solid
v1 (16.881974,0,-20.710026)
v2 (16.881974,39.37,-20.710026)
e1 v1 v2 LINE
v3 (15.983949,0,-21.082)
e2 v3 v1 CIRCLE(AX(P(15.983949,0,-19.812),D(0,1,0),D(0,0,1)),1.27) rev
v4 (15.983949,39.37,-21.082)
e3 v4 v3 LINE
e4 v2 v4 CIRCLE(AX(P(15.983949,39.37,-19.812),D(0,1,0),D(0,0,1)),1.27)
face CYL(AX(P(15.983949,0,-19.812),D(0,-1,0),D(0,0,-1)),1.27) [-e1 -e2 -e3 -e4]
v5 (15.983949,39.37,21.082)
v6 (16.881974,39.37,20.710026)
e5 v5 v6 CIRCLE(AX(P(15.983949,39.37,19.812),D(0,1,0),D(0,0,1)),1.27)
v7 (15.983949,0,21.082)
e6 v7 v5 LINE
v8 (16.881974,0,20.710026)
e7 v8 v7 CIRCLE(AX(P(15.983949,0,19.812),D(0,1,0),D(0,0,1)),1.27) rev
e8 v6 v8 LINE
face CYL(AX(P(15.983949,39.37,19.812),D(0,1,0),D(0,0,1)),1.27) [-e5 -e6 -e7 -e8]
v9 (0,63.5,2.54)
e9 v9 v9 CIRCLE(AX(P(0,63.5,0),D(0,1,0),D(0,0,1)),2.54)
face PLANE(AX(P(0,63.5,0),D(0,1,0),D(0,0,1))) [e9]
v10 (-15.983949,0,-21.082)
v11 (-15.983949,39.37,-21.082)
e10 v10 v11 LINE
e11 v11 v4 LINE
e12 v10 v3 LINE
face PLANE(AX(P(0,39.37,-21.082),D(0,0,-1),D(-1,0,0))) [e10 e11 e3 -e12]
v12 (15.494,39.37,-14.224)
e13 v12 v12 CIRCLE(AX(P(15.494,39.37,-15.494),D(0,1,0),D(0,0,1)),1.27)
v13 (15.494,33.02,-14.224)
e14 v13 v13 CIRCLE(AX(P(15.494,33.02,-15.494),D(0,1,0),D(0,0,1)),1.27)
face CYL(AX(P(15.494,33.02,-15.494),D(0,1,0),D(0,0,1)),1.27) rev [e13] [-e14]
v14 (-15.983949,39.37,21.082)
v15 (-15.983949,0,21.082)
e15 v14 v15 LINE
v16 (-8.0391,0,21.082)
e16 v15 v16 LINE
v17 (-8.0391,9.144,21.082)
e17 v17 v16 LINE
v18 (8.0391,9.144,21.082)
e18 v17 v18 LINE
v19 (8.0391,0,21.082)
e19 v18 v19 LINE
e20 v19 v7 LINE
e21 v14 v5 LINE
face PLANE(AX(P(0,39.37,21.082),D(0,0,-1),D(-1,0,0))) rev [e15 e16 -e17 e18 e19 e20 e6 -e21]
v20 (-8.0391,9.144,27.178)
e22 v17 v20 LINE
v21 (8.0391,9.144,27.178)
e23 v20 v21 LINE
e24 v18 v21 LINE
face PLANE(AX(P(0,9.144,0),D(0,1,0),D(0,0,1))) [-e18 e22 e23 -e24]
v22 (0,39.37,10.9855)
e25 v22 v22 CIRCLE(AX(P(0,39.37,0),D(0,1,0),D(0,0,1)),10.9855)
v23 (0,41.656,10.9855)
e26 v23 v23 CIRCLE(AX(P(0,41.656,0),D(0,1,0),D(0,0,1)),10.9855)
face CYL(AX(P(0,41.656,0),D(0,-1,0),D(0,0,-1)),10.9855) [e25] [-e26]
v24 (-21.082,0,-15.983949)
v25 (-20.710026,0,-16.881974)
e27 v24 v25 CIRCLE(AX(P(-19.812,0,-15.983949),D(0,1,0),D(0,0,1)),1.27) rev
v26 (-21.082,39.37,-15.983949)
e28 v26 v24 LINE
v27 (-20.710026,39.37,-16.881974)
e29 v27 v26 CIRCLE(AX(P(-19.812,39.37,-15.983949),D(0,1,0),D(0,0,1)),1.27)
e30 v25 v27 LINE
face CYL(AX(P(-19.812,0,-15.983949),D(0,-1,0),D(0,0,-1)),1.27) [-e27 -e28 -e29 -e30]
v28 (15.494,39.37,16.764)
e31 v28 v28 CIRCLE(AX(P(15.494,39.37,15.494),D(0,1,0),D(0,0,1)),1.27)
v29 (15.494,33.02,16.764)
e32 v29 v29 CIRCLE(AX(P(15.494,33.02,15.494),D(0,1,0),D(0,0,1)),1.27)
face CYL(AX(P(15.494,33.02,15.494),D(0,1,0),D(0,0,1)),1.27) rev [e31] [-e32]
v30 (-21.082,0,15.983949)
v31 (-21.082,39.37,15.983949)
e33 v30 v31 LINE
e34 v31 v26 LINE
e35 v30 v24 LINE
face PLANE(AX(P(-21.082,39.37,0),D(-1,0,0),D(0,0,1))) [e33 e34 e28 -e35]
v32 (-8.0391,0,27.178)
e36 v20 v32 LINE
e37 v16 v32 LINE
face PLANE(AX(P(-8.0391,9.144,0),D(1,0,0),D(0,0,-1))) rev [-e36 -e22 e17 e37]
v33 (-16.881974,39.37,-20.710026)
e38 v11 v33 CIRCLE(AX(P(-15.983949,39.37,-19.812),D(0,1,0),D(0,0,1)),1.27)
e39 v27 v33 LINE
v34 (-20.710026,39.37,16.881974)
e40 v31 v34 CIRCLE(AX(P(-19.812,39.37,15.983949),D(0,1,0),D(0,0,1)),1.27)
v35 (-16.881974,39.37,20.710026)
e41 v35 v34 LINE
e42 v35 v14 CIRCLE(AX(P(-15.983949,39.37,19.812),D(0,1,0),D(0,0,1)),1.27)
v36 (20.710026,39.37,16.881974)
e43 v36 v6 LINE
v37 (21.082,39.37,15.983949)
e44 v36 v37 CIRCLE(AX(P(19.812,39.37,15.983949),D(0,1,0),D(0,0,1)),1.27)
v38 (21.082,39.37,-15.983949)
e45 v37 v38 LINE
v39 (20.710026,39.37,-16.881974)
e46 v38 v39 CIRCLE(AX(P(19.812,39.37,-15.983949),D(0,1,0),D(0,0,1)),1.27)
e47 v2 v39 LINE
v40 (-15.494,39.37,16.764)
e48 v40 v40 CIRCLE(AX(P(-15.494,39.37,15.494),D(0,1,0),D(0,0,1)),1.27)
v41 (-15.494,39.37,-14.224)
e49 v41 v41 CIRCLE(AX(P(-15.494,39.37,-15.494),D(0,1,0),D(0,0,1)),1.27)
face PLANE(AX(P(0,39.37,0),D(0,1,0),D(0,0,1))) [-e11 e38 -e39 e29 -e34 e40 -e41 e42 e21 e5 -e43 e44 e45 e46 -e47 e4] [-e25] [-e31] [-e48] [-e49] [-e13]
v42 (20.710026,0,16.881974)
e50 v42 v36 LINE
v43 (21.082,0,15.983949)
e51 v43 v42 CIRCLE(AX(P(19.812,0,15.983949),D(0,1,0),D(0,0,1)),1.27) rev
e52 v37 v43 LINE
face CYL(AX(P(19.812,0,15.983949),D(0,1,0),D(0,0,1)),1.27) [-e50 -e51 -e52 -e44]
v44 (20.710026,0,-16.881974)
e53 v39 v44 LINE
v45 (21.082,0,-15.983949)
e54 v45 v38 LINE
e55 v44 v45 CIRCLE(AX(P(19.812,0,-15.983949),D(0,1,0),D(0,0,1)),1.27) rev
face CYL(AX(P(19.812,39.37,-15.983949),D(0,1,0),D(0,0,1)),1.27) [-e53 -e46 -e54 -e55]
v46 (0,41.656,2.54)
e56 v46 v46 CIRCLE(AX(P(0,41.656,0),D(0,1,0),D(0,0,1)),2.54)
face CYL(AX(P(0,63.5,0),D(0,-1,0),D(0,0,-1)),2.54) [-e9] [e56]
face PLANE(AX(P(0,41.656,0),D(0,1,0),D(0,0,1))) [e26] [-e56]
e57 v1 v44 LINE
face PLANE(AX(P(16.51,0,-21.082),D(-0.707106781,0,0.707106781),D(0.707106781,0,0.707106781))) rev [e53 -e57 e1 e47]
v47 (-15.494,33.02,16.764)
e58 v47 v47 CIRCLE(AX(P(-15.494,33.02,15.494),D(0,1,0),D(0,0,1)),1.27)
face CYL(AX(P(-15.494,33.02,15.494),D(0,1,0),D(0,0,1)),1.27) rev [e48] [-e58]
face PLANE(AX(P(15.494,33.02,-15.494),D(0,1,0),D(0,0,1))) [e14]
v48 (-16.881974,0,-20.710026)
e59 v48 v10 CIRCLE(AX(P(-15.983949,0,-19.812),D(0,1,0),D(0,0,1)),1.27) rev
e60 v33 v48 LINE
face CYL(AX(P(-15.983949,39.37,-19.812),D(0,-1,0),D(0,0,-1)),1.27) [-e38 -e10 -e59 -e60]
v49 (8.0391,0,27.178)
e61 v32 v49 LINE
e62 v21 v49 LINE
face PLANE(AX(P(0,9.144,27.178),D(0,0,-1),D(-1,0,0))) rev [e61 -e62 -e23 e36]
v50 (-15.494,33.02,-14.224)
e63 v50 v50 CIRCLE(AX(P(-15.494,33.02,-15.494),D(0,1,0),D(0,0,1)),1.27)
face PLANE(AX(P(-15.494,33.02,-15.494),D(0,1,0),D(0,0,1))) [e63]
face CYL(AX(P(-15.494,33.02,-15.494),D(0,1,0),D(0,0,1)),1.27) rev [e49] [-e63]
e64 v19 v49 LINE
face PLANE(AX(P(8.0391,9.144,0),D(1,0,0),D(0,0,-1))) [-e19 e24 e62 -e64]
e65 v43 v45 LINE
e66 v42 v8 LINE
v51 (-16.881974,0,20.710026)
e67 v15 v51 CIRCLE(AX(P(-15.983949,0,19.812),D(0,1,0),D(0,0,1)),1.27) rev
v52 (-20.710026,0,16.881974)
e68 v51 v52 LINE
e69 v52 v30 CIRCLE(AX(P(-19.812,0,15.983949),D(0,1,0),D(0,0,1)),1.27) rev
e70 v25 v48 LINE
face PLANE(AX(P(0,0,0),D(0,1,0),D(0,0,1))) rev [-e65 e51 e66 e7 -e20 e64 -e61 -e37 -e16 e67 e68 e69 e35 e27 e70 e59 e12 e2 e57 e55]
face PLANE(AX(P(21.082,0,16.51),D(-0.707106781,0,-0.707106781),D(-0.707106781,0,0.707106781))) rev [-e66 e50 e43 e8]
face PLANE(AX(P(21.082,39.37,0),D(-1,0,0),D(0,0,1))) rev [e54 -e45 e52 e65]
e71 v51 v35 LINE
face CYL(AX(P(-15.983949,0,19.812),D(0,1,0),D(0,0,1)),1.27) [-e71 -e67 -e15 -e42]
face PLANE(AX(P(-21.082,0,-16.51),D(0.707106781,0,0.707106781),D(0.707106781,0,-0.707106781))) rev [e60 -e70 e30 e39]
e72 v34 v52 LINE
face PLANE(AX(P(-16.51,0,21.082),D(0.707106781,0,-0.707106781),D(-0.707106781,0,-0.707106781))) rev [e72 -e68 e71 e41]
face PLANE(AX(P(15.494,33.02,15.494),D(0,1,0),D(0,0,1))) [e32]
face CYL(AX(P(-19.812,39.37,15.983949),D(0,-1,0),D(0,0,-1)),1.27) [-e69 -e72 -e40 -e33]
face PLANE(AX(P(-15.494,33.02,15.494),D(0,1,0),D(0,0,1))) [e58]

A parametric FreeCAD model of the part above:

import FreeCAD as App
import Part
import Sketcher
from FreeCAD import Vector
Q = App.Units.Quantity


def edges_at(feature, points):
    """Names of the edges that pass closest to the given points."""
    edges = feature.Shape.Edges
    near = lambda p: min(range(len(edges)), key=lambda i: edges[i].distToShape(Part.Vertex(*p))[0])
    return sorted({f"Edge{near(p) + 1}" for p in points})

doc = App.newDocument("Part")
body = doc.addObject("PartDesign::Body", "Body")

# Sketch on XZ plane
sketch1 = doc.addObject("Sketcher::SketchObject", "Sketch")
body.addObject(sketch1)
sketch1.AttachmentSupport = (doc.XZ_Plane, [""])
sketch1.MapMode = "FlatFace"
sketch1.addGeometry(Part.LineSegment(Vector(-21, -21, 0), Vector(-21, 21, 0)), False)
sketch1.addGeometry(Part.LineSegment(Vector(-21, 21, 0), Vector(21, 21, 0)), False)
sketch1.addGeometry(Part.LineSegment(Vector(21, 21, 0), Vector(21, -21, 0)), False)
sketch1.addGeometry(Part.LineSegment(Vector(21, -21, 0), Vector(-21, -21, 0)), False)
sketch1.addConstraint(Sketcher.Constraint("Coincident", 0, 2, 1, 1))
sketch1.addConstraint(Sketcher.Constraint("Coincident", 1, 2, 2, 1))
sketch1.addConstraint(Sketcher.Constraint("Coincident", 2, 2, 3, 1))
sketch1.addConstraint(Sketcher.Constraint("Coincident", 3, 2, 0, 1))
sketch1.addConstraint(Sketcher.Constraint("Vertical", 0))
sketch1.addConstraint(Sketcher.Constraint("Horizontal", 1))
sketch1.addConstraint(Sketcher.Constraint("Vertical", 2))
sketch1.addConstraint(Sketcher.Constraint("Horizontal", 3))
sketch1.addConstraint(Sketcher.Constraint("Symmetric", 0, 2, 2, 2, -1, 1))
sketch1.addConstraint(Sketcher.Constraint("Equal", 3, 0))
sketch1.addConstraint(Sketcher.Constraint("DistanceX", 1, 1, 1, 2, Q("1.66 in")))
pad1 = doc.addObject("PartDesign::Pad", "Pad")
body.addObject(pad1)
pad1.Profile = sketch1
pad1.Length = Q("1.55 in")
pad1.Reversed = True

# Sketch on XZ plane
sketch2 = doc.addObject("Sketcher::SketchObject", "Sketch001")
body.addObject(sketch2)
sketch2.AttachmentSupport = (doc.XZ_Plane, [""])
sketch2.MapMode = "FlatFace"
sketch2.addGeometry(Part.LineSegment(Vector(-8, 21, 0), Vector(-8, 27, 0)), False)
sketch2.addGeometry(Part.LineSegment(Vector(-8, 27, 0), Vector(8, 27, 0)), False)
sketch2.addGeometry(Part.LineSegment(Vector(8, 27, 0), Vector(8, 21, 0)), False)
sketch2.addGeometry(Part.LineSegment(Vector(8, 21, 0), Vector(-8, 21, 0)), False)
sketch2.addConstraint(Sketcher.Constraint("Coincident", 0, 2, 1, 1))
sketch2.addConstraint(Sketcher.Constraint("Coincident", 1, 2, 2, 1))
sketch2.addConstraint(Sketcher.Constraint("Coincident", 2, 2, 3, 1))
sketch2.addConstraint(Sketcher.Constraint("Coincident", 3, 2, 0, 1))
sketch2.addConstraint(Sketcher.Constraint("Vertical", 0))
sketch2.addConstraint(Sketcher.Constraint("Horizontal", 1))
sketch2.addConstraint(Sketcher.Constraint("Vertical", 2))
sketch2.addConstraint(Sketcher.Constraint("Horizontal", 3))
sketch2.addConstraint(Sketcher.Constraint("DistanceY", 0, 1, 0, 2, Q("0.24 in")))
sketch2.addConstraint(Sketcher.Constraint("DistanceX", 1, 1, 1, 2, Q("0.633 in")))
sketch2.addConstraint(Sketcher.Constraint("DistanceY", -1, 1, 0, 2, Q("1.07 in")))
sketch2.addConstraint(Sketcher.Constraint("DistanceX", 0, 2, -1, 1, Q("0.3165 in")))
pad2 = doc.addObject("PartDesign::Pad", "Pad001")
body.addObject(pad2)
pad2.Profile = sketch2
pad2.Length = Q("0.36 in")
pad2.Reversed = True

# Sketch on XZ plane
sketch3 = doc.addObject("Sketcher::SketchObject", "Sketch002")
body.addObject(sketch3)
sketch3.AttachmentSupport = (doc.XZ_Plane, [""])
sketch3.MapMode = "FlatFace"
sketch3.AttachmentOffset = App.Placement(Vector(0, 0, -1.55 * 25.4), App.Rotation())
sketch3.addGeometry(Part.Circle(Vector(0, 0, 0), Vector(0, 0, 1), 11), False)
sketch3.addConstraint(Sketcher.Constraint("Coincident", 0, 3, -1, 1))
sketch3.addConstraint(Sketcher.Constraint("Diameter", 0, Q("0.865 in")))
pad3 = doc.addObject("PartDesign::Pad", "Pad002")
body.addObject(pad3)
pad3.Profile = sketch3
pad3.Length = Q("0.09 in")
pad3.Reversed = True

# Sketch on XZ plane
sketch4 = doc.addObject("Sketcher::SketchObject", "Sketch003")
body.addObject(sketch4)
sketch4.AttachmentSupport = (doc.XZ_Plane, [""])
sketch4.MapMode = "FlatFace"
sketch4.AttachmentOffset = App.Placement(Vector(0, 0, -1.64 * 25.4), App.Rotation())
sketch4.addGeometry(Part.Circle(Vector(0, 0, 0), Vector(0, 0, 1), 2.5), False)
sketch4.addConstraint(Sketcher.Constraint("Coincident", 0, 3, -1, 1))
sketch4.addConstraint(Sketcher.Constraint("Diameter", 0, Q("0.2 in")))
pad4 = doc.addObject("PartDesign::Pad", "Pad003")
body.addObject(pad4)
pad4.Profile = sketch4
pad4.Length = Q("0.86 in")
pad4.Reversed = True

# Sketch on XZ plane
sketch5 = doc.addObject("Sketcher::SketchObject", "Sketch004")
body.addObject(sketch5)
sketch5.AttachmentSupport = (doc.XZ_Plane, [""])
sketch5.MapMode = "FlatFace"
sketch5.AttachmentOffset = App.Placement(Vector(0, 0, -1.55 * 25.4), App.Rotation())
sketch5.addGeometry(Part.Circle(Vector(-15.5, -15.5, 0), Vector(0, 0, 1), 1.3), False)
sketch5.addGeometry(Part.Circle(Vector(15.5, -15.5, 0), Vector(0, 0, 1), 1.3), False)
sketch5.addGeometry(Part.Circle(Vector(15.5, 15.5, 0), Vector(0, 0, 1), 1.3), False)
sketch5.addGeometry(Part.Circle(Vector(-15.5, 15.5, 0), Vector(0, 0, 1), 1.3), False)
sketch5.addConstraint(Sketcher.Constraint("Equal", 0, 1))
sketch5.addConstraint(Sketcher.Constraint("Equal", 1, 2))
sketch5.addConstraint(Sketcher.Constraint("Equal", 2, 3))
sketch5.addConstraint(Sketcher.Constraint("Symmetric", 0, 3, 2, 3, -1, 1))
sketch5.addConstraint(Sketcher.Constraint("Symmetric", 1, 3, 3, 3, -1, 1))
sketch5.addConstraint(Sketcher.Constraint("Symmetric", 0, 3, 1, 3, -2))
sketch5.addConstraint(Sketcher.Constraint("Diameter", 0, Q("0.1 in")))
sketch5.addConstraint(Sketcher.Constraint("DistanceX", 0, 3, -1, 1, Q("0.61 in")))
sketch5.addConstraint(Sketcher.Constraint("DistanceY", 0, 3, -1, 1, Q("0.61 in")))
pocket1 = doc.addObject("PartDesign::Pocket", "Pocket")
body.addObject(pocket1)
pocket1.Profile = sketch5
pocket1.Length = Q("0.25 in")
pocket1.Reversed = True

# Sketch on XZ plane
sketch6 = doc.addObject("Sketcher::SketchObject", "Sketch005")
body.addObject(sketch6)
sketch6.AttachmentSupport = (doc.XZ_Plane, [""])
sketch6.MapMode = "FlatFace"
sketch6.AttachmentOffset = App.Placement(Vector(0, 0, -1.55 * 25.4), App.Rotation())
sketch6.addGeometry(Part.LineSegment(Vector(-21.1, -16.5, 0), Vector(-16.5, -21.1, 0)), False)
sketch6.addGeometry(Part.LineSegment(Vector(-16.5, -21.1, 0), Vector(-21.1, -21.1, 0)), False)
sketch6.addGeometry(Part.LineSegment(Vector(-21.1, -21.1, 0), Vector(-21.1, -16.5, 0)), False)
sketch6.addGeometry(Part.LineSegment(Vector(16.5, -21.1, 0), Vector(21.1, -16.5, 0)), False)
sketch6.addGeometry(Part.LineSegment(Vector(21.1, -16.5, 0), Vector(21.1, -21.1, 0)), False)
sketch6.addGeometry(Part.LineSegment(Vector(21.1, -21.1, 0), Vector(16.5, -21.1, 0)), False)
sketch6.addGeometry(Part.LineSegment(Vector(21.1, 16.5, 0), Vector(16.5, 21.1, 0)), False)
sketch6.addGeometry(Part.LineSegment(Vector(16.5, 21.1, 0), Vector(21.1, 21.1, 0)), False)
sketch6.addGeometry(Part.LineSegment(Vector(21.1, 21.1, 0), Vector(21.1, 16.5, 0)), False)
sketch6.addGeometry(Part.LineSegment(Vector(-16.5, 21.1, 0), Vector(-21.1, 16.5, 0)), False)
sketch6.addGeometry(Part.LineSegment(Vector(-21.1, 16.5, 0), Vector(-21.1, 21.1, 0)), False)
sketch6.addGeometry(Part.LineSegment(Vector(-21.1, 21.1, 0), Vector(-16.5, 21.1, 0)), False)
sketch6.addConstraint(Sketcher.Constraint("Coincident", 0, 2, 1, 1))
sketch6.addConstraint(Sketcher.Constraint("Coincident", 1, 2, 2, 1))
sketch6.addConstraint(Sketcher.Constraint("Coincident", 2, 2, 0, 1))
sketch6.addConstraint(Sketcher.Constraint("Coincident", 3, 2, 4, 1))
sketch6.addConstraint(Sketcher.Constraint("Coincident", 4, 2, 5, 1))
sketch6.addConstraint(Sketcher.Constraint("Coincident", 5, 2, 3, 1))
sketch6.addConstraint(Sketcher.Constraint("Coincident", 6, 2, 7, 1))
sketch6.addConstraint(Sketcher.Constraint("Coincident", 7, 2, 8, 1))
sketch6.addConstraint(Sketcher.Constraint("Coincident", 8, 2, 6, 1))
sketch6.addConstraint(Sketcher.Constraint("Coincident", 9, 2, 10, 1))
sketch6.addConstraint(Sketcher.Constraint("Coincident", 10, 2, 11, 1))
sketch6.addConstraint(Sketcher.Constraint("Coincident", 11, 2, 9, 1))
sketch6.addConstraint(Sketcher.Constraint("Horizontal", 1))
sketch6.addConstraint(Sketcher.Constraint("Vertical", 2))
sketch6.addConstraint(Sketcher.Constraint("Vertical", 4))
sketch6.addConstraint(Sketcher.Constraint("Horizontal", 5))
sketch6.addConstraint(Sketcher.Constraint("Horizontal", 7))
sketch6.addConstraint(Sketcher.Constraint("Vertical", 8))
sketch6.addConstraint(Sketcher.Constraint("Vertical", 10))
sketch6.addConstraint(Sketcher.Constraint("Horizontal", 11))
sketch6.addConstraint(Sketcher.Constraint("Symmetric", 0, 2, 6, 2, -1, 1))
sketch6.addConstraint(Sketcher.Constraint("Symmetric", 2, 2, 8, 2, -1, 1))
sketch6.addConstraint(Sketcher.Constraint("Symmetric", 3, 2, 9, 2, -1, 1))
sketch6.addConstraint(Sketcher.Constraint("Symmetric", 5, 2, 11, 2, -1, 1))
sketch6.addConstraint(Sketcher.Constraint("Symmetric", 2, 2, 3, 2, -2))
sketch6.addConstraint(Sketcher.Constraint("Symmetric", 0, 2, 5, 2, -2))
sketch6.addConstraint(Sketcher.Constraint("Perpendicular", 0, 3))
sketch6.addConstraint(Sketcher.Constraint("DistanceX", 1, 2, 1, 1, Q("0.18 in")))
sketch6.addConstraint(Sketcher.Constraint("DistanceX", 0, 2, 5, 2, Q("1.3 in")))
sketch6.addConstraint(Sketcher.Constraint("DistanceY", 3, 2, 8, 2, Q("1.3 in")))
pocket2 = doc.addObject("PartDesign::Pocket", "Pocket001")
body.addObject(pocket2)
pocket2.Profile = sketch6
pocket2.Type = "ThroughAll"
pocket2.Reversed = True
doc.recompute()

fillet = doc.addObject("PartDesign::Fillet", "Fillet")
body.addObject(fillet)
fillet.Base = (pocket2, edges_at(pocket2, [
    (-16.51, 19.685, 21.082),
    (-21.082, 19.685, 16.51),
    (21.082, 19.685, 16.51),
    (16.51, 19.685, 21.082),
    (16.51, 19.685, -21.082),
    (21.082, 19.685, -16.51),
    (-21.082, 19.685, -16.51),
    (-16.51, 19.685, -21.082),
]))
fillet.Radius = Q("0.05 in")

doc.recompute()
